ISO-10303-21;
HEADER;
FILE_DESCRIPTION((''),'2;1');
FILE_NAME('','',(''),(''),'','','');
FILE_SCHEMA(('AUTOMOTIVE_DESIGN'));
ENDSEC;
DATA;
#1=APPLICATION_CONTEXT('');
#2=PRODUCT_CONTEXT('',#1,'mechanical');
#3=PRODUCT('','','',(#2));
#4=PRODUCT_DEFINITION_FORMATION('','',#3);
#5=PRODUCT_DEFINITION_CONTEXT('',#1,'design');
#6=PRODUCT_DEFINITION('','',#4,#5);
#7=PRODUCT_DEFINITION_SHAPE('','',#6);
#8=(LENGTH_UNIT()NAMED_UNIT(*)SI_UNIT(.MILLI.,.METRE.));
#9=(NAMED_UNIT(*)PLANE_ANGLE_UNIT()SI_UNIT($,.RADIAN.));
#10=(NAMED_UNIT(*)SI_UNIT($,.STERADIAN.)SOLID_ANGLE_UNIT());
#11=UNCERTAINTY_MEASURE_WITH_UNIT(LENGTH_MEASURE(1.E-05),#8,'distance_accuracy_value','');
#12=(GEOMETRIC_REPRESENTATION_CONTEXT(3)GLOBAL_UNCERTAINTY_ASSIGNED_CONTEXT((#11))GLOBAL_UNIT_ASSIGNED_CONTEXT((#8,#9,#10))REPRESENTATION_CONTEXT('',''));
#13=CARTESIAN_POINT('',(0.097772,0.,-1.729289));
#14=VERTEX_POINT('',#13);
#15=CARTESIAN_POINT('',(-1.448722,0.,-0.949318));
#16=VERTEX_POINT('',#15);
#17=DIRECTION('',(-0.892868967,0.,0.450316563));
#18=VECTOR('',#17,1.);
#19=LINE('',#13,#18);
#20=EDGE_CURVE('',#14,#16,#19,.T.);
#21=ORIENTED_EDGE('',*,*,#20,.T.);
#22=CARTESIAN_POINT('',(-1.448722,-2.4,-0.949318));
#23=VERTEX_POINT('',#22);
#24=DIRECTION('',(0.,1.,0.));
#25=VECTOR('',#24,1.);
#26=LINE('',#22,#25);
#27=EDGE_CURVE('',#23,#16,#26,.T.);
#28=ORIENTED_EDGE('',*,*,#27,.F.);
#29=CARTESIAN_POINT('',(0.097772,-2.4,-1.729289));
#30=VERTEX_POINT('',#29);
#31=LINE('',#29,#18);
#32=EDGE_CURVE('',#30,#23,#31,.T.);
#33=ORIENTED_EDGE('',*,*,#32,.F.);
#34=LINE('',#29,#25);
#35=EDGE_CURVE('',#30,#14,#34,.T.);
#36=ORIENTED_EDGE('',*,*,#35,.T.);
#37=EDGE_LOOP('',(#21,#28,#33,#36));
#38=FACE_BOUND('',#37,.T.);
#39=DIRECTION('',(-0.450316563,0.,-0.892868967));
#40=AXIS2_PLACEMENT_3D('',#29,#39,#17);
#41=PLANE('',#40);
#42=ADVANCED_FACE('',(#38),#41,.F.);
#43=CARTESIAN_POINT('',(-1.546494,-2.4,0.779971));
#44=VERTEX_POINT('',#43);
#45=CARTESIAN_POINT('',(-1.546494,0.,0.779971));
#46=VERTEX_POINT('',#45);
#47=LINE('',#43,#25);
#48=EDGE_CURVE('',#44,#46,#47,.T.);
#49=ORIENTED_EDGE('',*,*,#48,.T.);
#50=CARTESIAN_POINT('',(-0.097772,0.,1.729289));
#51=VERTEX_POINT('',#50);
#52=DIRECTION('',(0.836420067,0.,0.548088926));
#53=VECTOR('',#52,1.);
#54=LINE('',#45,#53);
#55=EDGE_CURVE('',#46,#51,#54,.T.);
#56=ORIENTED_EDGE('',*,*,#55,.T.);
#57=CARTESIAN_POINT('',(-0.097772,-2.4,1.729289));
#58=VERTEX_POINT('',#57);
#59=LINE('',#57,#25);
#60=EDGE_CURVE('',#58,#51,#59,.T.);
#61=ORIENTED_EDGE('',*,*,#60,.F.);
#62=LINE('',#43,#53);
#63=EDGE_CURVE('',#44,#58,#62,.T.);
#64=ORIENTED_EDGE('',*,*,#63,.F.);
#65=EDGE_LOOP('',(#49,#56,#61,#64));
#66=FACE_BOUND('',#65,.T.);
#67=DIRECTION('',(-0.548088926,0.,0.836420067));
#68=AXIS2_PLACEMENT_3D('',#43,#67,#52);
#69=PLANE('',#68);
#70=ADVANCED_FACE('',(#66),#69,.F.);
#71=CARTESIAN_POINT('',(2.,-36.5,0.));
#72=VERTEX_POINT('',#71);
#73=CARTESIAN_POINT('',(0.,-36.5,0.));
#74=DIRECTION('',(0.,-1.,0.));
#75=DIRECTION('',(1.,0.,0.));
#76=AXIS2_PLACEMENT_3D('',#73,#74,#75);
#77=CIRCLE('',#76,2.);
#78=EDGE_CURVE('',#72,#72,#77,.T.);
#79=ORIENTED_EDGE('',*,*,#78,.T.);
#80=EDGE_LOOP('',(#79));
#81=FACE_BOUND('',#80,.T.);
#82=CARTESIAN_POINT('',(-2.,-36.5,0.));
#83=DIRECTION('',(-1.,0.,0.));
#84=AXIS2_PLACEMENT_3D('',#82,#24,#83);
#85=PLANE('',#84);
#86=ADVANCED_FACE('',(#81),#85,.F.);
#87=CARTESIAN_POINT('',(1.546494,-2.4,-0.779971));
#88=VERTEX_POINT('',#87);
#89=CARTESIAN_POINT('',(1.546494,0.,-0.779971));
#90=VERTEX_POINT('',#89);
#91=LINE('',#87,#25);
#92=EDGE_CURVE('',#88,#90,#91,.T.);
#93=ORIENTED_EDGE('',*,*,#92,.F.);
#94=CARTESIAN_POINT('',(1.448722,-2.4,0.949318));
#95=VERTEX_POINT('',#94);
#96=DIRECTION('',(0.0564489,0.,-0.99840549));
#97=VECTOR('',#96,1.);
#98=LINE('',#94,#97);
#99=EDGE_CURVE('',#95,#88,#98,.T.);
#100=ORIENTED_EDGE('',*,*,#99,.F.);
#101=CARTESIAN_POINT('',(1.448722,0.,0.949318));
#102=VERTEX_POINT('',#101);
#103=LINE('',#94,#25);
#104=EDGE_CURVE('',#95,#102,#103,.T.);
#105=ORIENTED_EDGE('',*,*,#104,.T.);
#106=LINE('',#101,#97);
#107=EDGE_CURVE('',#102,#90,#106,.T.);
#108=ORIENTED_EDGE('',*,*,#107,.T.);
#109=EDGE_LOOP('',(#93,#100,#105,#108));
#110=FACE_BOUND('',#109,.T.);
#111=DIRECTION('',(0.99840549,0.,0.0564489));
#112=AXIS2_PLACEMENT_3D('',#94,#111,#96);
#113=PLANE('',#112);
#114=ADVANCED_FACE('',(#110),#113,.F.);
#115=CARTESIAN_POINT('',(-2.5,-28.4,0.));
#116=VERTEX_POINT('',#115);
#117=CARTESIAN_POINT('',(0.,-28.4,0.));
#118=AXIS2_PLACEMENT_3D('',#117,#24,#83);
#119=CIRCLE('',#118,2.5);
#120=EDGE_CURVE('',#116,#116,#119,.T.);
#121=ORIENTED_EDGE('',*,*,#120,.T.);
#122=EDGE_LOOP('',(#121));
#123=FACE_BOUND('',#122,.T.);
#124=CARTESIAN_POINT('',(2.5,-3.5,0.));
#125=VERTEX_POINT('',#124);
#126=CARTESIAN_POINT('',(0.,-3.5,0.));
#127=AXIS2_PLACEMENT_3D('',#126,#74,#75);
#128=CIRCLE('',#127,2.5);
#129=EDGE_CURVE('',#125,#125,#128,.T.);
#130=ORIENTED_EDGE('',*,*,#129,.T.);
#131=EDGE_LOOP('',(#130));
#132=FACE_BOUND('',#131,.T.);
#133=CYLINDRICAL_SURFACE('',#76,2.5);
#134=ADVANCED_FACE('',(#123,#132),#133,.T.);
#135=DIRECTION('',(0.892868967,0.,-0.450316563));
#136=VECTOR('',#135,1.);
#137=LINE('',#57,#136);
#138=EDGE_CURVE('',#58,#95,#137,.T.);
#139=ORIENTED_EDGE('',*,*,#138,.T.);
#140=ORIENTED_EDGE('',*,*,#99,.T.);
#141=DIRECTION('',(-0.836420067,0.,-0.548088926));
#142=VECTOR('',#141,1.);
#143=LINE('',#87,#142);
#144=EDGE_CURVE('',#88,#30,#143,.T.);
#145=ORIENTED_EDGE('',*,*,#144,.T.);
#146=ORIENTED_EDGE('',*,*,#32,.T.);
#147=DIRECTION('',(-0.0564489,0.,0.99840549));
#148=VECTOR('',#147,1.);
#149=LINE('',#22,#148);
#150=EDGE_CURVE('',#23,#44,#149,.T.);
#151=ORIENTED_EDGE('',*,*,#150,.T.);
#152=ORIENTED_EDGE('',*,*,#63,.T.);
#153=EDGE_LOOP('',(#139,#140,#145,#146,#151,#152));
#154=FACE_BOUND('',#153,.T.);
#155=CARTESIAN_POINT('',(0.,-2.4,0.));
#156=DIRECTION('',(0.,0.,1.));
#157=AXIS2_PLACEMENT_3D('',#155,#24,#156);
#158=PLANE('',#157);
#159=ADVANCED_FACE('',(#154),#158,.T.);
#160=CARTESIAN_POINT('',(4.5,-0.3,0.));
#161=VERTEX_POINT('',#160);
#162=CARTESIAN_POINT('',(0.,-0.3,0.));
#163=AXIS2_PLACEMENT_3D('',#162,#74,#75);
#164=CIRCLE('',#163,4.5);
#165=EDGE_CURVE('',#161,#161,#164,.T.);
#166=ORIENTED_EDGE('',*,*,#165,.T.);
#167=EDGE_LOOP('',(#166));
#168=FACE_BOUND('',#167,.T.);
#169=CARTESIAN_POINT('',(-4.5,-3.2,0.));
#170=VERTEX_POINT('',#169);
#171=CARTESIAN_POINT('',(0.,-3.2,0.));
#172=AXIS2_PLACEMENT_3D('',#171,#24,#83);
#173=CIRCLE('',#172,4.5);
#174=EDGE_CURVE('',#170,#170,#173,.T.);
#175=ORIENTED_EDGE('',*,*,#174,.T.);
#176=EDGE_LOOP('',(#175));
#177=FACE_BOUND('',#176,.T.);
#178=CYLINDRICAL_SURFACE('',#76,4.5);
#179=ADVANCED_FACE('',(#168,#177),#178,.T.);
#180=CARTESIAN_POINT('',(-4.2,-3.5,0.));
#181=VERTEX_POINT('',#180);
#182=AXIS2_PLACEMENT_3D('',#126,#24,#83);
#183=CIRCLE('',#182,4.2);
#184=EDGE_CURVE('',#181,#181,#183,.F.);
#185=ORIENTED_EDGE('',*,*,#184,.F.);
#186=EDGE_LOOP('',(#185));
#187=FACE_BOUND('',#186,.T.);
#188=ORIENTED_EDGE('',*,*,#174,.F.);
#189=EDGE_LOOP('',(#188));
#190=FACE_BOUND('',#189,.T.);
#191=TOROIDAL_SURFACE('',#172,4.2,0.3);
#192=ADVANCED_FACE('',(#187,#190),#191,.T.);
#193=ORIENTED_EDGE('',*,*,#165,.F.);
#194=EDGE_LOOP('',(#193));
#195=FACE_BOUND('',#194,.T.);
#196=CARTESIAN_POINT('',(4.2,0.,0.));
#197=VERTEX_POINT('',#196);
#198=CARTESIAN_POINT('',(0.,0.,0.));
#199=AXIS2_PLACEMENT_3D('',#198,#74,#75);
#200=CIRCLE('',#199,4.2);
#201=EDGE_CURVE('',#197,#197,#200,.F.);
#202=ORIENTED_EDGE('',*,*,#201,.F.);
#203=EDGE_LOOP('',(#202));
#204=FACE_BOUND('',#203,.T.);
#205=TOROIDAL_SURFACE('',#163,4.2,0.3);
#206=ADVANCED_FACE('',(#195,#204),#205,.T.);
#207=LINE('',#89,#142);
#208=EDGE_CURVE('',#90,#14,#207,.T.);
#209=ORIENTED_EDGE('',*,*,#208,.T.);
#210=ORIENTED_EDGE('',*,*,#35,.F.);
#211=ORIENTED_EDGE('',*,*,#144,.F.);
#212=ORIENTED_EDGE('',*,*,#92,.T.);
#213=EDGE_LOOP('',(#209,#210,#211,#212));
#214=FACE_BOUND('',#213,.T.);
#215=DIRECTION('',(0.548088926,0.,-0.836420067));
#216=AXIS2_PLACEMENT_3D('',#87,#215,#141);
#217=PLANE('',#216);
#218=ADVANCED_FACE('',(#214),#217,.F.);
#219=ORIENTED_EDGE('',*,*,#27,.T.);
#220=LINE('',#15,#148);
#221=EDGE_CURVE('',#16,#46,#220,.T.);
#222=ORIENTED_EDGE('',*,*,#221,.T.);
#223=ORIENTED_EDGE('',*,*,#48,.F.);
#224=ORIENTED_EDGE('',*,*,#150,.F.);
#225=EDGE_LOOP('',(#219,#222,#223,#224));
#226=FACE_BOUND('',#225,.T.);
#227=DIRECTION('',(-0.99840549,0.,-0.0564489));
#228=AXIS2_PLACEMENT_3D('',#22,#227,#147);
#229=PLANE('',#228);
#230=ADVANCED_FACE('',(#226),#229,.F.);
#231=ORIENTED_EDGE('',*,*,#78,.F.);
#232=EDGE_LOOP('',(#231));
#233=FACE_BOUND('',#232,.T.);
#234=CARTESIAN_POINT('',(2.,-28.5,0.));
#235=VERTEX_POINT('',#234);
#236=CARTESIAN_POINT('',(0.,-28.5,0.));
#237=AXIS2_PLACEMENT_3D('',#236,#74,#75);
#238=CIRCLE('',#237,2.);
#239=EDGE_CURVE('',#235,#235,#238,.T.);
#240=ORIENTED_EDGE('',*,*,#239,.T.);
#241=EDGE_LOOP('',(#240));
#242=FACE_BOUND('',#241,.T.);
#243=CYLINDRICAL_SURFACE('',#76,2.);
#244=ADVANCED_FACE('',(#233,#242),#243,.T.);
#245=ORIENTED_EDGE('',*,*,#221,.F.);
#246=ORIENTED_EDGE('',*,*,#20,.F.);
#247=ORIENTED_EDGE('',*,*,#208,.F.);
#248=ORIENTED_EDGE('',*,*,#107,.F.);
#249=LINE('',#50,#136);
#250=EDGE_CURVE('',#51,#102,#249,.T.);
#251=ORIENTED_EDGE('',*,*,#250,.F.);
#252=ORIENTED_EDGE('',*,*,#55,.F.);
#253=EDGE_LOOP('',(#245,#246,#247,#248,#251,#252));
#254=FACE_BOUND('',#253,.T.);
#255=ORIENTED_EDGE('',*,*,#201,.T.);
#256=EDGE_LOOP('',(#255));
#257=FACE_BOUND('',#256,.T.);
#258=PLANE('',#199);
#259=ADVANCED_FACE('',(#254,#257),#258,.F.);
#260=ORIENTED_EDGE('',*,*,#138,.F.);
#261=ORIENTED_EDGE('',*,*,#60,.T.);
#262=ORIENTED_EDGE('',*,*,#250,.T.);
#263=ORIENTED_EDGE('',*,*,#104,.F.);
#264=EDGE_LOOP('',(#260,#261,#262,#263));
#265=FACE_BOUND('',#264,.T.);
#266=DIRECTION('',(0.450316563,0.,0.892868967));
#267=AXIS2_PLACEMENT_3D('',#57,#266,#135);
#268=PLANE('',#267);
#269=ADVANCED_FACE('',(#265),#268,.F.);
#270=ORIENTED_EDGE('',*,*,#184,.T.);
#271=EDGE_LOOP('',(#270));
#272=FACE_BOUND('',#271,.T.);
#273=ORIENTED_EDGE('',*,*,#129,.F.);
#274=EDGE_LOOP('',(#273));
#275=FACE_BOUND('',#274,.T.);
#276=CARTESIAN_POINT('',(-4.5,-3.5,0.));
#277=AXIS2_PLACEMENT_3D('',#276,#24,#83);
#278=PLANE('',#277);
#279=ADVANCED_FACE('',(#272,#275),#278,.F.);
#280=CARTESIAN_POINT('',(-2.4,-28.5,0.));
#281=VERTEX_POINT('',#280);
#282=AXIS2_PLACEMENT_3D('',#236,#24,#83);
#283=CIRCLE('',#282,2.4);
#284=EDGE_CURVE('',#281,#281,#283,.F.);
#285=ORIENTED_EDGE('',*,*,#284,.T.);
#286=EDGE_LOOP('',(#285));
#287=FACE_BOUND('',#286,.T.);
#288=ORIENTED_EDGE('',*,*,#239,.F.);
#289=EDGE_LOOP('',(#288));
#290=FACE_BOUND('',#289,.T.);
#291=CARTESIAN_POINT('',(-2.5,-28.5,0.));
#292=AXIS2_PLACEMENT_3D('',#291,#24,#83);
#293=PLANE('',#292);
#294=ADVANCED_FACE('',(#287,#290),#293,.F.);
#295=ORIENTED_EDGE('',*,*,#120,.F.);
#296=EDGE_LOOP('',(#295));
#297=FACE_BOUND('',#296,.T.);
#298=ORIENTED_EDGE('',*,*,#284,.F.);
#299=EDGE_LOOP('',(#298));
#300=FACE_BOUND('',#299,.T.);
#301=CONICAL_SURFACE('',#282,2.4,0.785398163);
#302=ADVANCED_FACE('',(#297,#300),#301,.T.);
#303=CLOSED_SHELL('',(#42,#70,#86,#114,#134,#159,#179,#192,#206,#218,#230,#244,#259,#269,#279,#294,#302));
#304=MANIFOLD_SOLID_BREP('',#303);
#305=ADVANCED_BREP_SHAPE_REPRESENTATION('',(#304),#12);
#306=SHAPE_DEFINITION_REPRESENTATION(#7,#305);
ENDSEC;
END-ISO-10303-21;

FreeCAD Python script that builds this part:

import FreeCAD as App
import Part
import Sketcher
from FreeCAD import Vector
Q = App.Units.Quantity


def edges_at(feature, points):
    """Names of the edges that pass closest to the given points."""
    edges = feature.Shape.Edges
    near = lambda p: min(range(len(edges)), key=lambda i: edges[i].distToShape(Part.Vertex(*p))[0])
    return sorted({f"Edge{near(p) + 1}" for p in points})


def add_polygon(sketch, points):
    """Adds a closed chain of lines whose ends are joined by coincident constraints."""
    first, n = sketch.GeometryCount, len(points)
    for a, b in zip(points, points[1:] + points[:1]):
        sketch.addGeometry(Part.LineSegment(App.Vector(*a, 0), App.Vector(*b, 0)), False)
    for i in range(n):
        sketch.addConstraint(Sketcher.Constraint("Coincident", first + i, 2, first + (i + 1) % n, 1))

doc = App.newDocument("Part")
body = doc.addObject("PartDesign::Body", "Body")

# Sketch on XY plane
sketch1 = body.newObject("Sketcher::SketchObject", "Sketch")
sketch1.AttachmentSupport = (doc.getObject("XY_Plane"), [""])
sketch1.MapMode = "FlatFace"
add_polygon(sketch1, [(0, 0), (-4.5, 0), (-4.5, -3.5), (-2.5, -3.5), (-2.5, -28.5), (-2, -28.5), (-2, -36.5), (0, -36.5)])  # lines 0-7
sketch1.addConstraint([
    Sketcher.Constraint("Horizontal", 0),
    Sketcher.Constraint("Vertical", 1),
    Sketcher.Constraint("Horizontal", 2),
    Sketcher.Constraint("Vertical", 3),
    Sketcher.Constraint("Horizontal", 4),
    Sketcher.Constraint("Vertical", 5),
    Sketcher.Constraint("Horizontal", 6),
    Sketcher.Constraint("Vertical", 7),
    Sketcher.Constraint("Coincident", 7, 2, -1, 1),
    Sketcher.Constraint("Equal", 2, 6),
    Sketcher.Constraint("DistanceX", 2, 1, 2, 2, Q("2 mm")),
    Sketcher.Constraint("DistanceY", 3, 2, 3, 1, Q("25 mm")),
    Sketcher.Constraint("DistanceY", 5, 2, 5, 1, Q("8 mm")),
    Sketcher.Constraint("DistanceX", 0, 2, 0, 1, Q("4.5 mm")),
    Sketcher.Constraint("DistanceY", 1, 2, 1, 1, Q("3.5 mm")),
])
revolution = body.newObject("PartDesign::Revolution", "Revolution")
revolution.Profile = sketch1
revolution.ReferenceAxis = (sketch1, ["V_Axis"])
revolution.Angle = 360
doc.recompute()

fillet = body.newObject("PartDesign::Fillet", "Fillet")
fillet.Base = (revolution, edges_at(revolution, [(4.5, -3.5, 0), (4.5, 0, 0)]))
fillet.Radius = 0.3

# Sketch on XZ plane
sketch2 = body.newObject("Sketcher::SketchObject", "Sketch001")
sketch2.AttachmentSupport = (doc.getObject("XZ_Plane"), [""])
sketch2.MapMode = "FlatFace"
add_polygon(sketch2, [(1.4, 0.9), (1.5, -0.8), (0.1, -1.7), (-1.4, -0.9), (-1.5, 0.8), (-0.1, 1.7)])  # lines 0-5
sketch2.addConstraint([
    Sketcher.Constraint("Symmetric", 0, 2, 3, 2, -1, 1),
    Sketcher.Constraint("Symmetric", 1, 2, 4, 2, -1, 1),
    Sketcher.Constraint("Symmetric", 2, 2, 5, 2, -1, 1),
    Sketcher.Constraint("Equal", 0, 1),
    Sketcher.Constraint("Equal", 1, 2),
    Sketcher.Constraint("Distance", 0, Q("1.732051 mm")),
    Sketcher.Constraint("DistanceY", 0, 2, -1, 1, Q("0.779971 mm")),
    Sketcher.Constraint("DistanceY", 1, 2, -1, 1, Q("1.729289 mm")),
    Sketcher.Constraint("DistanceY", 1, 2, 2, 2, Q("0.779971 mm")),
])
pocket1 = body.newObject("PartDesign::Pocket", "Pocket")
pocket1.Profile = sketch2
pocket1.Length = 2.4
pocket1.Reversed = True
doc.recompute()

chamfer = body.newObject("PartDesign::Chamfer", "Chamfer")
chamfer.Base = (pocket1, edges_at(pocket1, [(2.5, -28.5, 0)]))
chamfer.Size = 0.1

doc.recompute()
